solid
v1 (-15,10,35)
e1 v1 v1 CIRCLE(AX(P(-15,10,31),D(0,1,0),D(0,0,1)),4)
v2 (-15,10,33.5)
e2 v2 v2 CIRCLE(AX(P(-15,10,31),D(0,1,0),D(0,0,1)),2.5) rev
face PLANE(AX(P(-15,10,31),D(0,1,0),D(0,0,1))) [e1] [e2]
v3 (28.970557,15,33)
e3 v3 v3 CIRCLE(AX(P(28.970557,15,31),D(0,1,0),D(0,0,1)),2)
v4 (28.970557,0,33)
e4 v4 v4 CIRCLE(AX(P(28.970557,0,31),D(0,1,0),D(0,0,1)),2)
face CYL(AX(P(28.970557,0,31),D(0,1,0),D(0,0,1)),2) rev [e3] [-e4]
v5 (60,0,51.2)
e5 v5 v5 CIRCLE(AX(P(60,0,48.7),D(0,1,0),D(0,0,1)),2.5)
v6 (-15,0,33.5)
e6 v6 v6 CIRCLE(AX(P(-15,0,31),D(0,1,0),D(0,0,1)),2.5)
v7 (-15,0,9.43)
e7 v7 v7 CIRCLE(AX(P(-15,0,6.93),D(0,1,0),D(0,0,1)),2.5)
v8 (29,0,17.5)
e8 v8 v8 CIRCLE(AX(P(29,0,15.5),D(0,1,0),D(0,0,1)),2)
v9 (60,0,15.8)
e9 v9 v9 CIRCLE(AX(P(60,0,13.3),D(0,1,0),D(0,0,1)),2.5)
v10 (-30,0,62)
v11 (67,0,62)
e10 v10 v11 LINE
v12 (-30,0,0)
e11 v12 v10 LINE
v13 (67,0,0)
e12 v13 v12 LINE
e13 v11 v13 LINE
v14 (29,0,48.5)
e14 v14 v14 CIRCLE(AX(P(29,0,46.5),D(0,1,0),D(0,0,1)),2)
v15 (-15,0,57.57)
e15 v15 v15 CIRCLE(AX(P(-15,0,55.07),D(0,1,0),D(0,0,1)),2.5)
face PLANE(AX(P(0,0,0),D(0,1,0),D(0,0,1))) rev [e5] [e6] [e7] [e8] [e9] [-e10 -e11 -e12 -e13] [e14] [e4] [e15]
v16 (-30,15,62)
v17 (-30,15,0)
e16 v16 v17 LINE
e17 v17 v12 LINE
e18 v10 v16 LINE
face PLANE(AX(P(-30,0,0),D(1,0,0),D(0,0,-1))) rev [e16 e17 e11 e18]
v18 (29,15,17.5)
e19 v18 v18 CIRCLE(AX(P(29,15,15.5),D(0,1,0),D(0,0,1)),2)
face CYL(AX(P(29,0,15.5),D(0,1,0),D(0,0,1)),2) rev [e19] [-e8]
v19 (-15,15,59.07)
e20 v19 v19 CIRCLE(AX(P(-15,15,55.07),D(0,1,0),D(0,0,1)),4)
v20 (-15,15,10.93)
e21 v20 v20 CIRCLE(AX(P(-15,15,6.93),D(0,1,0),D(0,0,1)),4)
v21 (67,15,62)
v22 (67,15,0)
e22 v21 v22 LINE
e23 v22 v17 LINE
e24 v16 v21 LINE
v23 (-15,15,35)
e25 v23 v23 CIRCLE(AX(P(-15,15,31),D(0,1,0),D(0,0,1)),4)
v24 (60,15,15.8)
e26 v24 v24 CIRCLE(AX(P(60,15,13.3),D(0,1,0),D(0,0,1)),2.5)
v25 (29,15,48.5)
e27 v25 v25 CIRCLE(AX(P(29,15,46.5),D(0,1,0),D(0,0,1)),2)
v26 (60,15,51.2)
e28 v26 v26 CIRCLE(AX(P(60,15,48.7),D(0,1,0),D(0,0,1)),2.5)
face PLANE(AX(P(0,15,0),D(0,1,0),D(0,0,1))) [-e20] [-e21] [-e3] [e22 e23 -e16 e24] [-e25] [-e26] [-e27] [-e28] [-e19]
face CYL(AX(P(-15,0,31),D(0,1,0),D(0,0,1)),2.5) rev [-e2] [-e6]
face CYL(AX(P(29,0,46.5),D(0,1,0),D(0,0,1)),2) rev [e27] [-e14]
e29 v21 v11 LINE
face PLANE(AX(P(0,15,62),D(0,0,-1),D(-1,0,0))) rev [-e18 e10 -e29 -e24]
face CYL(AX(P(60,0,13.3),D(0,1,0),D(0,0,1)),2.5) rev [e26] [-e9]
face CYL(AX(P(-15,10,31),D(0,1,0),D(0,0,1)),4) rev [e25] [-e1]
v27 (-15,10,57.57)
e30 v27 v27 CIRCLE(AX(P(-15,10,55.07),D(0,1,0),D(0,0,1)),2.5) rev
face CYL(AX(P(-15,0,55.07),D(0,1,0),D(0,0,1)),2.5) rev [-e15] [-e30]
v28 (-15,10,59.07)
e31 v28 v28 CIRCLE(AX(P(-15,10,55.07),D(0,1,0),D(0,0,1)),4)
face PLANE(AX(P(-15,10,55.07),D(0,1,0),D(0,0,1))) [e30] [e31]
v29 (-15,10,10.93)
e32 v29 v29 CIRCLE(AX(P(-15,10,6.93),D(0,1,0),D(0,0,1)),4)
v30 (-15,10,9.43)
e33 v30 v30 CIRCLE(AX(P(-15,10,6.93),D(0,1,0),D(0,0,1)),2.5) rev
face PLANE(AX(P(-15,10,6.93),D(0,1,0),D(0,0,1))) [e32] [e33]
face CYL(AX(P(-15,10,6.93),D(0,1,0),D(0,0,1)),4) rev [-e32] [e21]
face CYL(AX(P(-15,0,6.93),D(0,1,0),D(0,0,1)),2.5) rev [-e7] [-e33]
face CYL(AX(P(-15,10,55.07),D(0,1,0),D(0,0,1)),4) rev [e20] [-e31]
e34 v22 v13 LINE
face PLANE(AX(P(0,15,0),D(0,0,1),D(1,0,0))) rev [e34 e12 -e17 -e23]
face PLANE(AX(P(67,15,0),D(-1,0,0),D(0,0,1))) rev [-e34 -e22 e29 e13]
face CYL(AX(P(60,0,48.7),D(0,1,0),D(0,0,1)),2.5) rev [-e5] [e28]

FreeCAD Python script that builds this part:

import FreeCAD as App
import Part
import Sketcher
Q = App.Units.Quantity

doc = App.newDocument("Part")
body = doc.addObject("PartDesign::Body", "Body")

sketch1 = doc.addObject("Sketcher::SketchObject", "Sketch")
body.addObject(sketch1)
sketch1.AttachmentSupport = (doc.XZ_Plane, [""])
sketch1.MapMode = "FlatFace"
sketch1.addGeometry([
    Part.LineSegment(App.Vector(0, 0, 0), App.Vector(0, 62, 0)),
    Part.LineSegment(App.Vector(0, 62, 0), App.Vector(67, 62, 0)),
    Part.LineSegment(App.Vector(67, 62, 0), App.Vector(67, 0, 0)),
    Part.LineSegment(App.Vector(67, 0, 0), App.Vector(0, 0, 0)),
], False)
sketch1.addConstraint([
    Sketcher.Constraint("Coincident", 0, 2, 1, 1),
    Sketcher.Constraint("Coincident", 1, 2, 2, 1),
    Sketcher.Constraint("Coincident", 2, 2, 3, 1),
    Sketcher.Constraint("Coincident", 3, 2, 0, 1),
    Sketcher.Constraint("Vertical", 0),
    Sketcher.Constraint("Horizontal", 1),
    Sketcher.Constraint("Vertical", 2),
    Sketcher.Constraint("Horizontal", 3),
    Sketcher.Constraint("Coincident", 3, 2, -1, 1),
    Sketcher.Constraint("DistanceX", 1, 1, 1, 2, Q("67 mm")),
    Sketcher.Constraint("DistanceY", 0, 1, 0, 2, Q("62 mm")),
])
pad1 = doc.addObject("PartDesign::Pad", "Pad")
body.addObject(pad1)
pad1.Profile = sketch1
pad1.Length = 15
pad1.Reversed = True

sketch2 = doc.addObject("Sketcher::SketchObject", "Sketch001")
body.addObject(sketch2)
sketch2.AttachmentSupport = (doc.XZ_Plane, [""])
sketch2.MapMode = "FlatFace"
sketch2.AttachmentOffset = App.Placement(App.Vector(0, 0, -15), App.Rotation())
sketch2.addGeometry([
    Part.Circle(App.Vector(60, 13.3, 0), App.Vector(0, 0, 1), 2.5),
    Part.Circle(App.Vector(60, 48.7, 0), App.Vector(0, 0, 1), 2.5),
    Part.Circle(App.Vector(29, 46.5, 0), App.Vector(0, 0, 1), 2),
    Part.Circle(App.Vector(29, 31, 0), App.Vector(0, 0, 1), 2),
    Part.Circle(App.Vector(29, 15.5, 0), App.Vector(0, 0, 1), 2),
], False)
sketch2.addConstraint([
    Sketcher.Constraint("Equal", 0, 1),
    Sketcher.Constraint("Equal", 2, 3),
    Sketcher.Constraint("Equal", 3, 4),
    Sketcher.Constraint("Vertical", 0, 3, 1, 3),
    Sketcher.Constraint("Vertical", 2, 3, 4, 3),
    Sketcher.Constraint("Diameter", 0, Q("5 mm")),
    Sketcher.Constraint("Diameter", 2, Q("4 mm")),
    Sketcher.Constraint("DistanceX", -1, 1, 0, 3, Q("60 mm")),
    Sketcher.Constraint("DistanceX", -1, 1, 2, 3, Q("29 mm")),
    Sketcher.Constraint("DistanceY", -1, 1, 3, 3, Q("31 mm")),
    Sketcher.Constraint("DistanceY", 4, 3, 2, 3, Q("31 mm")),
    Sketcher.Constraint("DistanceY", -1, 1, 0, 3, Q("13.3 mm")),
    Sketcher.Constraint("DistanceY", -1, 1, 1, 3, Q("48.7 mm")),
    Sketcher.Constraint("DistanceY", -1, 1, 2, 3, Q("46.5 mm")),
    Sketcher.Constraint("DistanceX", -1, 1, 3, 3, Q("28.970557 mm")),
])
pocket1 = doc.addObject("PartDesign::Pocket", "Pocket")
body.addObject(pocket1)
pocket1.Profile = sketch2
pocket1.Type = "ThroughAll"
pocket1.Reversed = True

sketch3 = doc.addObject("Sketcher::SketchObject", "Sketch002")
body.addObject(sketch3)
sketch3.AttachmentSupport = (doc.YZ_Plane, [""])
sketch3.MapMode = "FlatFace"
sketch3.addGeometry([
    Part.LineSegment(App.Vector(15, 0, 0), App.Vector(0, 0, 0)),
    Part.LineSegment(App.Vector(0, 0, 0), App.Vector(0, 62, 0)),
    Part.LineSegment(App.Vector(0, 62, 0), App.Vector(15, 62, 0)),
    Part.LineSegment(App.Vector(15, 62, 0), App.Vector(15, 0, 0)),
], False)
sketch3.addConstraint([
    Sketcher.Constraint("Coincident", 0, 2, 1, 1),
    Sketcher.Constraint("Coincident", 1, 2, 2, 1),
    Sketcher.Constraint("Coincident", 2, 2, 3, 1),
    Sketcher.Constraint("Coincident", 3, 2, 0, 1),
    Sketcher.Constraint("Horizontal", 0),
    Sketcher.Constraint("Vertical", 1),
    Sketcher.Constraint("Horizontal", 2),
    Sketcher.Constraint("Vertical", 3),
    Sketcher.Constraint("Coincident", 0, 2, -1, 1),
    Sketcher.Constraint("DistanceX", 0, 2, 0, 1, Q("15 mm")),
    Sketcher.Constraint("DistanceY", 1, 1, 1, 2, Q("62 mm")),
])
pad2 = doc.addObject("PartDesign::Pad", "Pad001")
body.addObject(pad2)
pad2.Profile = sketch3
pad2.Length = 30
pad2.Reversed = True

sketch4 = doc.addObject("Sketcher::SketchObject", "Sketch003")
body.addObject(sketch4)
sketch4.AttachmentSupport = (doc.XZ_Plane, [""])
sketch4.MapMode = "FlatFace"
sketch4.AttachmentOffset = App.Placement(App.Vector(0, 0, -15), App.Rotation())
sketch4.addGeometry([
    Part.Circle(App.Vector(-15, 31, 0), App.Vector(0, 0, 1), 2.5),
    Part.Circle(App.Vector(-15, 6.9, 0), App.Vector(0, 0, 1), 2.5),
    Part.Circle(App.Vector(-15, 55.1, 0), App.Vector(0, 0, 1), 2.5),
], False)
sketch4.addConstraint([
    Sketcher.Constraint("Equal", 0, 1),
    Sketcher.Constraint("Equal", 1, 2),
    Sketcher.Constraint("Vertical", 0, 3, 1, 3),
    Sketcher.Constraint("Vertical", 1, 3, 2, 3),
    Sketcher.Constraint("Diameter", 0, Q("5 mm")),
    Sketcher.Constraint("DistanceX", 0, 3, -1, 1, Q("15 mm")),
    Sketcher.Constraint("DistanceY", -1, 1, 0, 3, Q("31 mm")),
    Sketcher.Constraint("DistanceY", -1, 1, 1, 3, Q("6.93 mm")),
    Sketcher.Constraint("DistanceY", -1, 1, 2, 3, Q("55.07 mm")),
])
pocket2 = doc.addObject("PartDesign::Pocket", "Pocket001")
body.addObject(pocket2)
pocket2.Profile = sketch4
pocket2.Type = "ThroughAll"
pocket2.Reversed = True

sketch5 = doc.addObject("Sketcher::SketchObject", "Sketch004")
body.addObject(sketch5)
sketch5.AttachmentSupport = (doc.XZ_Plane, [""])
sketch5.MapMode = "FlatFace"
sketch5.AttachmentOffset = App.Placement(App.Vector(0, 0, -15), App.Rotation())
sketch5.addGeometry([
    Part.Circle(App.Vector(-15, 6.9, 0), App.Vector(0, 0, 1), 4),
    Part.Circle(App.Vector(-15, 31, 0), App.Vector(0, 0, 1), 4),
    Part.Circle(App.Vector(-15, 55.1, 0), App.Vector(0, 0, 1), 4),
], False)
sketch5.addConstraint([
    Sketcher.Constraint("Equal", 0, 1),
    Sketcher.Constraint("Equal", 1, 2),
    Sketcher.Constraint("Vertical", 0, 3, 1, 3),
    Sketcher.Constraint("Vertical", 1, 3, 2, 3),
    Sketcher.Constraint("Diameter", 0, Q("8 mm")),
    Sketcher.Constraint("DistanceX", 0, 3, -1, 1, Q("15 mm")),
    Sketcher.Constraint("DistanceY", -1, 1, 1, 3, Q("31 mm")),
    Sketcher.Constraint("DistanceY", -1, 1, 0, 3, Q("6.93 mm")),
    Sketcher.Constraint("DistanceY", -1, 1, 2, 3, Q("55.07 mm")),
])
pocket3 = doc.addObject("PartDesign::Pocket", "Pocket002")
body.addObject(pocket3)
pocket3.Profile = sketch5
pocket3.Length = 5
pocket3.Reversed = True

doc.recompute()
